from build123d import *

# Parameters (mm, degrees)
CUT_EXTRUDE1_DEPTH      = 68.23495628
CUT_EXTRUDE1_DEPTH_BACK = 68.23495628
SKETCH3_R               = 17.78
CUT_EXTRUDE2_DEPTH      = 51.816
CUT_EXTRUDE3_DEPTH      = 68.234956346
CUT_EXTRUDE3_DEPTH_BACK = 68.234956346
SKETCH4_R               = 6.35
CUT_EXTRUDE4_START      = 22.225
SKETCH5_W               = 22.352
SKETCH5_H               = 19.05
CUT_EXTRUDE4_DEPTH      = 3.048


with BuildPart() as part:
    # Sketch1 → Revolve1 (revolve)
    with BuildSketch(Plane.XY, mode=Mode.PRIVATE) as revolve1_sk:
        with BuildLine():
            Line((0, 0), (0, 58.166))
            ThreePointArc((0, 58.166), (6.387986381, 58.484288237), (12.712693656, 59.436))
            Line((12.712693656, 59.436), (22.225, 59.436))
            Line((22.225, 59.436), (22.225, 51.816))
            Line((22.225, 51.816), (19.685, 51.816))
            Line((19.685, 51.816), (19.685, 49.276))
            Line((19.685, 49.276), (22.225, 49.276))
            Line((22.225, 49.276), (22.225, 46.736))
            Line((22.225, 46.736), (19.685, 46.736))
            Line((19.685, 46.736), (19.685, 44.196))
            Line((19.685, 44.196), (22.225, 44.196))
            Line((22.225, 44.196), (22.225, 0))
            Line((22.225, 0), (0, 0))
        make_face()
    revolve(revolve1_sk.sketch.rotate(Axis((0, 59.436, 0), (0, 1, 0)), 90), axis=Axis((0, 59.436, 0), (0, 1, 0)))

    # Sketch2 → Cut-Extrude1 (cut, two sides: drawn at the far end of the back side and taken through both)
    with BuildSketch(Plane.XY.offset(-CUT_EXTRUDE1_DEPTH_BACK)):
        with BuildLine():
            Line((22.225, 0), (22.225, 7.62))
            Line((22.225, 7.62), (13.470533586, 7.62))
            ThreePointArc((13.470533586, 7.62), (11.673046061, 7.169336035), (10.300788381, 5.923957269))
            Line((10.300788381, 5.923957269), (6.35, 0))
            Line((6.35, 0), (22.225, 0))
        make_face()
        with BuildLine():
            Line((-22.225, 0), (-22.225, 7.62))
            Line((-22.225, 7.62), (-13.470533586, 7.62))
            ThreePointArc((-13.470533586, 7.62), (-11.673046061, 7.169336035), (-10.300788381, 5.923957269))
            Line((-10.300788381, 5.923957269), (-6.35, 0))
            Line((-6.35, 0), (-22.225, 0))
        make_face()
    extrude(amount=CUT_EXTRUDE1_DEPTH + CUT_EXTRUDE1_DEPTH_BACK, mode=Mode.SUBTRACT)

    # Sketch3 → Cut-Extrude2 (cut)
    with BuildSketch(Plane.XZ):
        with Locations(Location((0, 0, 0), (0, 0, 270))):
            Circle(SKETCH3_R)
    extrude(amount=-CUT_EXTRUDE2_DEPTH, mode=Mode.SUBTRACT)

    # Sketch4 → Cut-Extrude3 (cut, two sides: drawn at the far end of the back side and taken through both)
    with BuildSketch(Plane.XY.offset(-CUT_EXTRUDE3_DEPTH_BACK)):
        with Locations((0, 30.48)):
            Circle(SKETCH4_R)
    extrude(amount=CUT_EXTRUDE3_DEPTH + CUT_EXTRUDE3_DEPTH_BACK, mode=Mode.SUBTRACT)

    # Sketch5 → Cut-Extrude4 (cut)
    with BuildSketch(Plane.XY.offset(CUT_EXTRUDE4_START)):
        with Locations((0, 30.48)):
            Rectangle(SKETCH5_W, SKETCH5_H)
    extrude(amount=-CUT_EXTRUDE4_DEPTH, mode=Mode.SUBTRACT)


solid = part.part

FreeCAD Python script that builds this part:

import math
import FreeCAD as App
import Part
import Sketcher
Q = App.Units.Quantity


def add_polygon(sketch, points):
    """Adds a closed chain of lines whose ends are joined by coincident constraints."""
    first, n = sketch.GeometryCount, len(points)
    for a, b in zip(points, points[1:] + points[:1]):
        sketch.addGeometry(Part.LineSegment(App.Vector(*a, 0), App.Vector(*b, 0)), False)
    for i in range(n):
        sketch.addConstraint(Sketcher.Constraint("Coincident", first + i, 2, first + (i + 1) % n, 1))

doc = App.newDocument("Part")
body = doc.addObject("PartDesign::Body", "Body")

# Sketch on XY plane
sketch1 = body.newObject("Sketcher::SketchObject", "Sketch")
sketch1.AttachmentSupport = (doc.getObject("XY_Plane"), [""])
sketch1.MapMode = "FlatFace"
sketch1.addGeometry([
    Part.LineSegment(App.Vector(0, 58.2, 0), App.Vector(0, 0, 0)),  # 0
    Part.LineSegment(App.Vector(0, 0, 0), App.Vector(22.2, 0, 0)),  # 1
    Part.LineSegment(App.Vector(22.2, 0, 0), App.Vector(22.2, 44.2, 0)),  # 2
    Part.LineSegment(App.Vector(22.2, 44.2, 0), App.Vector(19.7, 44.2, 0)),  # 3
    Part.LineSegment(App.Vector(19.7, 44.2, 0), App.Vector(19.7, 46.7, 0)),  # 4
    Part.LineSegment(App.Vector(19.7, 46.7, 0), App.Vector(22.2, 46.7, 0)),  # 5
    Part.LineSegment(App.Vector(22.2, 46.7, 0), App.Vector(22.2, 49.3, 0)),  # 6
    Part.LineSegment(App.Vector(22.2, 49.3, 0), App.Vector(19.7, 49.3, 0)),  # 7
    Part.LineSegment(App.Vector(19.7, 49.3, 0), App.Vector(19.7, 51.8, 0)),  # 8
    Part.LineSegment(App.Vector(19.7, 51.8, 0), App.Vector(22.2, 51.8, 0)),  # 9
    Part.LineSegment(App.Vector(22.2, 51.8, 0), App.Vector(22.2, 59.4, 0)),  # 10
    Part.LineSegment(App.Vector(22.2, 59.4, 0), App.Vector(12.7, 59.4, 0)),  # 11
    Part.ArcOfCircle(Part.Circle(App.Vector(0, 122.4, 0), App.Vector(0, 0, 1), 64.3), math.radians(-90), math.radians(-78.59)),  # 12
], False)
sketch1.addConstraint([
    Sketcher.Constraint("Coincident", 0, 2, 1, 1),
    Sketcher.Constraint("Coincident", 1, 2, 2, 1),
    Sketcher.Constraint("Coincident", 2, 2, 3, 1),
    Sketcher.Constraint("Coincident", 3, 2, 4, 1),
    Sketcher.Constraint("Coincident", 4, 2, 5, 1),
    Sketcher.Constraint("Coincident", 5, 2, 6, 1),
    Sketcher.Constraint("Coincident", 6, 2, 7, 1),
    Sketcher.Constraint("Coincident", 7, 2, 8, 1),
    Sketcher.Constraint("Coincident", 8, 2, 9, 1),
    Sketcher.Constraint("Coincident", 9, 2, 10, 1),
    Sketcher.Constraint("Coincident", 10, 2, 11, 1),
    Sketcher.Constraint("Coincident", 11, 2, 12, 2),
    Sketcher.Constraint("Coincident", 12, 1, 0, 1),
    Sketcher.Constraint("Vertical", 0),
    Sketcher.Constraint("Horizontal", 1),
    Sketcher.Constraint("Vertical", 2),
    Sketcher.Constraint("Horizontal", 3),
    Sketcher.Constraint("Vertical", 4),
    Sketcher.Constraint("Horizontal", 5),
    Sketcher.Constraint("Vertical", 6),
    Sketcher.Constraint("Horizontal", 7),
    Sketcher.Constraint("Vertical", 8),
    Sketcher.Constraint("Horizontal", 9),
    Sketcher.Constraint("Vertical", 10),
    Sketcher.Constraint("Horizontal", 11),
    Sketcher.Constraint("Coincident", 0, 2, -1, 1),
    Sketcher.Constraint("PointOnObject", 12, 3, -2),
    Sketcher.Constraint("Vertical", 2, 2, 5, 2),
    Sketcher.Constraint("Vertical", 4, 2, 7, 2),
    Sketcher.Constraint("Vertical", 6, 2, 9, 2),
    Sketcher.Constraint("Equal", 9, 4),
    Sketcher.Constraint("Equal", 4, 6),
    Sketcher.Constraint("Equal", 6, 8),
    Sketcher.Constraint("Radius", 12, Q("2.53 in")),
    Sketcher.Constraint("DistanceX", 3, 2, 3, 1, Q("0.1 in")),
    Sketcher.Constraint("DistanceY", 10, 1, 10, 2, Q("0.3 in")),
    Sketcher.Constraint("DistanceY", 0, 2, 0, 1, Q("2.29 in")),
    Sketcher.Constraint("DistanceY", 2, 1, 2, 2, Q("1.74 in")),
    Sketcher.Constraint("DistanceX", 1, 1, 1, 2, Q("0.875 in")),
])
revolution = body.newObject("PartDesign::Revolution", "Revolution")
revolution.Profile = sketch1
revolution.ReferenceAxis = (sketch1, ["V_Axis"])
revolution.Angle = 360

# Sketch on XY plane
sketch2 = body.newObject("Sketcher::SketchObject", "Sketch001")
sketch2.AttachmentSupport = (doc.getObject("XY_Plane"), [""])
sketch2.MapMode = "FlatFace"
sketch2.addGeometry([
    Part.LineSegment(App.Vector(22.2, 0, 0), App.Vector(22.2, 7.6, 0)),  # 0
    Part.LineSegment(App.Vector(22.2, 7.6, 0), App.Vector(13.5, 7.6, 0)),  # 1
    Part.ArcOfCircle(Part.Circle(App.Vector(13.5, 3.8, 0), App.Vector(0, 0, 1), 3.8), math.radians(90), math.radians(146)),  # 2
    Part.LineSegment(App.Vector(10.3, 5.9, 0), App.Vector(6.3, 0, 0)),  # 3
    Part.LineSegment(App.Vector(6.3, 0, 0), App.Vector(22.2, 0, 0)),  # 4
    Part.LineSegment(App.Vector(-22.2, 7.6, 0), App.Vector(-22.2, 0, 0)),  # 5
    Part.LineSegment(App.Vector(-22.2, 0, 0), App.Vector(-6.3, 0, 0)),  # 6
    Part.LineSegment(App.Vector(-6.3, 0, 0), App.Vector(-10.3, 5.9, 0)),  # 7
    Part.ArcOfCircle(Part.Circle(App.Vector(-13.5, 3.8, 0), App.Vector(0, 0, 1), 3.8), math.radians(34), math.radians(90)),  # 8
    Part.LineSegment(App.Vector(-13.5, 7.6, 0), App.Vector(-22.2, 7.6, 0)),  # 9
], False)
sketch2.addConstraint([
    Sketcher.Constraint("Coincident", 0, 2, 1, 1),
    Sketcher.Constraint("Tangent", 1, 2, 2, 1),
    Sketcher.Constraint("Tangent", 2, 2, 3, 1),
    Sketcher.Constraint("Coincident", 3, 2, 4, 1),
    Sketcher.Constraint("Coincident", 4, 2, 0, 1),
    Sketcher.Constraint("Coincident", 5, 2, 6, 1),
    Sketcher.Constraint("Coincident", 6, 2, 7, 1),
    Sketcher.Constraint("Tangent", 7, 2, 8, 1),
    Sketcher.Constraint("Tangent", 8, 2, 9, 1),
    Sketcher.Constraint("Coincident", 9, 2, 5, 1),
    Sketcher.Constraint("Vertical", 0),
    Sketcher.Constraint("Horizontal", 1),
    Sketcher.Constraint("Horizontal", 4),
    Sketcher.Constraint("Vertical", 5),
    Sketcher.Constraint("Horizontal", 6),
    Sketcher.Constraint("Horizontal", 9),
    Sketcher.Constraint("Equal", 2, 8),
    Sketcher.Constraint("Symmetric", 4, 2, 5, 2, -1, 1),
    Sketcher.Constraint("Symmetric", 2, 3, 8, 3, -2),
    Sketcher.Constraint("Symmetric", 3, 2, 6, 2, -2),
    Sketcher.Constraint("Radius", 2, Q("0.15 in")),
    Sketcher.Constraint("DistanceY", 0, 1, 0, 2, Q("0.3 in")),
    Sketcher.Constraint("Angle", 3, Q("-123.7 deg")),
    Sketcher.Constraint("DistanceX", 6, 2, 3, 2, Q("0.5 in")),
    Sketcher.Constraint("DistanceX", 4, 1, 4, 2, Q("0.625 in")),
])
pocket1 = body.newObject("PartDesign::Pocket", "Pocket")
pocket1.Profile = sketch2
pocket1.Type = "ThroughAll"
pocket1.Midplane = True

# Sketch on XZ plane
sketch3 = body.newObject("Sketcher::SketchObject", "Sketch002")
sketch3.AttachmentSupport = (doc.getObject("XZ_Plane"), [""])
sketch3.MapMode = "FlatFace"
sketch3.addGeometry(Part.Circle(App.Vector(0, 0, 0), App.Vector(0, 0, 1), 18), False)
sketch3.addConstraint([
    Sketcher.Constraint("Coincident", 0, 3, -1, 1),
    Sketcher.Constraint("Diameter", 0, Q("1.4 in")),
])
pocket2 = body.newObject("PartDesign::Pocket", "Pocket001")
pocket2.Profile = sketch3
pocket2.Length = Q("2.04 in")

# Sketch on XY plane
sketch4 = body.newObject("Sketcher::SketchObject", "Sketch003")
sketch4.AttachmentSupport = (doc.getObject("XY_Plane"), [""])
sketch4.MapMode = "FlatFace"
sketch4.addGeometry(Part.Circle(App.Vector(0, 30, 0), App.Vector(0, 0, 1), 6), False)
sketch4.addConstraint([
    Sketcher.Constraint("PointOnObject", 0, 3, -2),
    Sketcher.Constraint("Diameter", 0, Q("0.5 in")),
    Sketcher.Constraint("DistanceY", -1, 1, 0, 3, Q("1.2 in")),
])
pocket3 = body.newObject("PartDesign::Pocket", "Pocket002")
pocket3.Profile = sketch4
pocket3.Type = "ThroughAll"
pocket3.Midplane = True

# Sketch on XY plane
sketch5 = body.newObject("Sketcher::SketchObject", "Sketch004")
sketch5.AttachmentSupport = (doc.getObject("XY_Plane"), [""])
sketch5.MapMode = "FlatFace"
sketch5.AttachmentOffset = App.Placement(App.Vector(0, 0, 0.875 * 25.4), App.Rotation())
add_polygon(sketch5, [(-11, 40), (-11, 21), (11, 21), (11, 40)])  # lines 0-3
sketch5.addConstraint([
    Sketcher.Constraint("Vertical", 0),
    Sketcher.Constraint("Horizontal", 1),
    Sketcher.Constraint("Vertical", 2),
    Sketcher.Constraint("Horizontal", 3),
    Sketcher.Constraint("DistanceX", 1, 1, 1, 2, Q("0.88 in")),
    Sketcher.Constraint("DistanceY", 0, 2, 0, 1, Q("0.75 in")),
    Sketcher.Constraint("DistanceX", 0, 2, -1, 1, Q("0.44 in")),
    Sketcher.Constraint("DistanceY", -1, 1, 0, 2, Q("0.825 in")),
])
pocket4 = body.newObject("PartDesign::Pocket", "Pocket003")
pocket4.Profile = sketch5
pocket4.Length = Q("0.12 in")

doc.recompute()
